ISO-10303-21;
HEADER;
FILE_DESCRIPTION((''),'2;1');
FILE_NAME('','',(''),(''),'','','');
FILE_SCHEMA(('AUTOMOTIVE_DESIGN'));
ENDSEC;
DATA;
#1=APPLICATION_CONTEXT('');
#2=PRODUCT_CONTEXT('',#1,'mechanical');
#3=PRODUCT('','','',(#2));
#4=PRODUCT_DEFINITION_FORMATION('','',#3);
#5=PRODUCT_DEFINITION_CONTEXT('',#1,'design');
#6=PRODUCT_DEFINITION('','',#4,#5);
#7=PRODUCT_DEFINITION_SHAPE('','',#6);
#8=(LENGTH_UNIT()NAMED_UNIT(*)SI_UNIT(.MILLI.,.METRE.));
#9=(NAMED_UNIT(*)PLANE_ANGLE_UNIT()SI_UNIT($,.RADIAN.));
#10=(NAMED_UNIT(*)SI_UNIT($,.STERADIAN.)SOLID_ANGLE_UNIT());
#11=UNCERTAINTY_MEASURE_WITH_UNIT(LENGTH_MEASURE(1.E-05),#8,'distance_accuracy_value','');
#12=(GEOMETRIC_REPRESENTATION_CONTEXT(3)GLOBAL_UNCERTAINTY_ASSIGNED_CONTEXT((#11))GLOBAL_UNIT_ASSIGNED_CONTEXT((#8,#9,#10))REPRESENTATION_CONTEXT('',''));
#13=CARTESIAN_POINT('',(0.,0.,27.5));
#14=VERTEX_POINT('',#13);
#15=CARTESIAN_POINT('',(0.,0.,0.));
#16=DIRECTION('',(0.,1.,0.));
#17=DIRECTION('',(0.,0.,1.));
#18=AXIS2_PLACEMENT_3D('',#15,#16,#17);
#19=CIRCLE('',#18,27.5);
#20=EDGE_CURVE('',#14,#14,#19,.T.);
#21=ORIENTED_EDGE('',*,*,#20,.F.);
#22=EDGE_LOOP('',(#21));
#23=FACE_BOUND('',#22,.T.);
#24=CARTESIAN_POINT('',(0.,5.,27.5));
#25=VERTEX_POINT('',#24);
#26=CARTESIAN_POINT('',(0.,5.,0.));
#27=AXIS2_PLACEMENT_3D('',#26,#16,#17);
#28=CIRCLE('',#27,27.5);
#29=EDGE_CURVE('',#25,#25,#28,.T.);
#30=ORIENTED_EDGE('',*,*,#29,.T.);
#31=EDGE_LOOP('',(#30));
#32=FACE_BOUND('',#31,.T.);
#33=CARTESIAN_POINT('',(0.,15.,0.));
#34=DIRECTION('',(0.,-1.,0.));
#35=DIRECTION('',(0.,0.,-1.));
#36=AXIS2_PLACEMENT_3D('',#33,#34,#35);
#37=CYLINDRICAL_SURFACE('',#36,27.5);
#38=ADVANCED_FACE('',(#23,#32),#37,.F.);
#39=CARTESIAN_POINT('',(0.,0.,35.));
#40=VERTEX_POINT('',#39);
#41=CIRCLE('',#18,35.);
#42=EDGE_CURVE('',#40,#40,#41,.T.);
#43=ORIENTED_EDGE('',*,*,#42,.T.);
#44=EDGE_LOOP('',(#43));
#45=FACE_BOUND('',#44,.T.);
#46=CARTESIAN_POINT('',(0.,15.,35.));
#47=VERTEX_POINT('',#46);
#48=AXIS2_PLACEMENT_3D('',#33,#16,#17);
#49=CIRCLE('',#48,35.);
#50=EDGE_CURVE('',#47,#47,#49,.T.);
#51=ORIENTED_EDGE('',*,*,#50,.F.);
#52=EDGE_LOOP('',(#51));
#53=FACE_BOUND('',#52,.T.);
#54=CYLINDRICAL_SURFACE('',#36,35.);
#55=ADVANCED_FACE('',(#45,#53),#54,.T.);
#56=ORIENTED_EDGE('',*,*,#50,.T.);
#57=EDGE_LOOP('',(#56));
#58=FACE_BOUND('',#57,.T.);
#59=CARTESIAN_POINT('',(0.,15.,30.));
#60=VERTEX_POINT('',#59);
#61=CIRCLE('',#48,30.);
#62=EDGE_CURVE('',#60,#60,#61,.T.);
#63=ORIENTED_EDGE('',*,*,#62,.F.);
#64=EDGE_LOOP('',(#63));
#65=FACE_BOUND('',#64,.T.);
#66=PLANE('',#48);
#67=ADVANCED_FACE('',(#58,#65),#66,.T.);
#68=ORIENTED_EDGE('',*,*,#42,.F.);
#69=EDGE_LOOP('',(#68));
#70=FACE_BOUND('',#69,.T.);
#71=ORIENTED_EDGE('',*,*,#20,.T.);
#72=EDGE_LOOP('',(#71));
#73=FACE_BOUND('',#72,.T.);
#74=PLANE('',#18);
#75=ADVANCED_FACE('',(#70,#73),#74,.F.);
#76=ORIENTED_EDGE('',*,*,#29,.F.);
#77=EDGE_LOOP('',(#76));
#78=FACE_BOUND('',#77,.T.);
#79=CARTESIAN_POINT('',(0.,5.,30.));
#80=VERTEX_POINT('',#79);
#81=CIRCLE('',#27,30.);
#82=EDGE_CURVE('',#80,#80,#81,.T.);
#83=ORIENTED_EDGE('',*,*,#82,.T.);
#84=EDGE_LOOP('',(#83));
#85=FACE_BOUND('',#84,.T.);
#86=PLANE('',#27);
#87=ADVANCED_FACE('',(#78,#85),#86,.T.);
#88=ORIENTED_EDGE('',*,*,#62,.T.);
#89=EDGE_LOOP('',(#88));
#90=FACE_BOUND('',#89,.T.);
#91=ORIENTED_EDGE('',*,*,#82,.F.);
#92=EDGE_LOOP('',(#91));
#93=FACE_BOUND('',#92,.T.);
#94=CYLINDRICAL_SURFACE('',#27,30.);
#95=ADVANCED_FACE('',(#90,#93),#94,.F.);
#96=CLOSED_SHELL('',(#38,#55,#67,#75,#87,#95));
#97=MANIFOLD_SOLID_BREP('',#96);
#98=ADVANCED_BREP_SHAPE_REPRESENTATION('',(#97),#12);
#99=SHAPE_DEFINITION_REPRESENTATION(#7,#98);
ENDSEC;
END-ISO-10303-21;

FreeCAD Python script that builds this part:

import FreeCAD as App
import Part
import Sketcher
from FreeCAD import Vector

doc = App.newDocument("Part")
body = doc.addObject("PartDesign::Body", "Body")

sketch1 = body.newObject("Sketcher::SketchObject", "Sketch")
sketch1.AttachmentSupport = (doc.getObject("XZ_Plane"), [""])
sketch1.MapMode = "FlatFace"
sketch1.addGeometry([
    Part.Circle(Vector(0, 0, 0), Vector(0, 0, 1), 35),
    Part.Circle(Vector(0, 0, 0), Vector(0, 0, 1), 28),
], False)
sketch1.addConstraint([
    Sketcher.Constraint("Coincident", 0, 3, -1, 1),
    Sketcher.Constraint("Coincident", 1, 3, -1, 1),
    Sketcher.Constraint("Diameter", 0, 70.0),
    Sketcher.Constraint("Diameter", 1, 55.0),
])
pad1 = body.newObject("PartDesign::Pad", "Pad")
pad1.Profile = sketch1
pad1.Length = 15
pad1.Reversed = True

sketch2 = body.newObject("Sketcher::SketchObject", "Sketch001")
sketch2.AttachmentSupport = (doc.getObject("XZ_Plane"), [""])
sketch2.MapMode = "FlatFace"
sketch2.AttachmentOffset = App.Placement(Vector(0, 0, -15), App.Rotation())
sketch2.addGeometry(Part.Circle(Vector(0, 0, 0), Vector(0, 0, 1), 30), False)
sketch2.addConstraint([
    Sketcher.Constraint("Coincident", 0, 3, -1, 1),
    Sketcher.Constraint("Diameter", 0, 60.0),
])
pocket1 = body.newObject("PartDesign::Pocket", "Pocket")
pocket1.Profile = sketch2
pocket1.Length = 10
pocket1.Reversed = True

doc.recompute()
